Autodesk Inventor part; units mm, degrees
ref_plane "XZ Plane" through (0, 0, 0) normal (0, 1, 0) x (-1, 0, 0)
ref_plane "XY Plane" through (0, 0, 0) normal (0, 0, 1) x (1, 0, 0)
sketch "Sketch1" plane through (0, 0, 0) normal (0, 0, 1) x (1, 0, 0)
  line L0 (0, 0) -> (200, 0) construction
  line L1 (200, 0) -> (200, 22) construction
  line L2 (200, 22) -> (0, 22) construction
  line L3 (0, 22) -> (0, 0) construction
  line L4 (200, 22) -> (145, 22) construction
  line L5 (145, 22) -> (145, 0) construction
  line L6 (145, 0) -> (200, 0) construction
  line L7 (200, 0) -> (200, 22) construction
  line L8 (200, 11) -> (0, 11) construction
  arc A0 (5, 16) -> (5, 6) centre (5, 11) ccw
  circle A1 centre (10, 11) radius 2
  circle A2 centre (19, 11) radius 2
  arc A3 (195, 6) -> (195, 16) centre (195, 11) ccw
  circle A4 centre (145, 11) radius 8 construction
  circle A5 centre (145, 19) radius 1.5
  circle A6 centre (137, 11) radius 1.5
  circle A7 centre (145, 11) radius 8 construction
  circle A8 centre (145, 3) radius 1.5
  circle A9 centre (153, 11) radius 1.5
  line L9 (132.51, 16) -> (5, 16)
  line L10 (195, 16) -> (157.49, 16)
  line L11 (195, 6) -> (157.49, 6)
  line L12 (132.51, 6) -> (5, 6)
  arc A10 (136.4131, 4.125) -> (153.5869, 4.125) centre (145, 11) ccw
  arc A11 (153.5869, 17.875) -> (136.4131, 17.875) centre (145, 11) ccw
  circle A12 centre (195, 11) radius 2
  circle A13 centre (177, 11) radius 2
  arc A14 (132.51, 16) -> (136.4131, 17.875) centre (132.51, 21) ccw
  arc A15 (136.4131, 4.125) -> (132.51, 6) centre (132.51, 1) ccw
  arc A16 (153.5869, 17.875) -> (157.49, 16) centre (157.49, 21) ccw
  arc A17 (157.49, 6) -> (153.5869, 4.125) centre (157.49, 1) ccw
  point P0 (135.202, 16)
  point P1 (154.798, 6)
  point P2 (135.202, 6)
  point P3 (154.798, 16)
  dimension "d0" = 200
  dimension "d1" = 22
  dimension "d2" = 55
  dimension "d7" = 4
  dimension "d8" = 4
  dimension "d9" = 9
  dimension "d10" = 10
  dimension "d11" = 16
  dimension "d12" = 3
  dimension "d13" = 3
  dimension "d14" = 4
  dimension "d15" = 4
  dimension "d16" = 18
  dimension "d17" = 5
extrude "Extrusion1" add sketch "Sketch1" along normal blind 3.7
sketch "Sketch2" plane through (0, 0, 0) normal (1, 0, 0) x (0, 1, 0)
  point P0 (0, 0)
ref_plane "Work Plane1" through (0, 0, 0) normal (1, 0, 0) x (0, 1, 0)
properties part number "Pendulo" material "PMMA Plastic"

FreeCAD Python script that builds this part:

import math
import FreeCAD as App
import Part
import Sketcher
Q = App.Units.Quantity

doc = App.newDocument("Part")
body = doc.addObject("PartDesign::Body", "Body")

# Sketch on XY plane
sketch1 = body.newObject("Sketcher::SketchObject", "Sketch")
sketch1.AttachmentSupport = (doc.getObject("XY_Plane"), [""])
sketch1.MapMode = "FlatFace"
sketch1.addGeometry([
    Part.LineSegment(App.Vector(132.5, 16, 0), App.Vector(5, 16, 0)),  # 0
    Part.ArcOfCircle(Part.Circle(App.Vector(5, 11, 0), App.Vector(0, 0, 1), 5), math.radians(90), math.radians(270)),  # 1
    Part.LineSegment(App.Vector(5, 6, 0), App.Vector(132.5, 6, 0)),  # 2
    Part.ArcOfCircle(Part.Circle(App.Vector(132.5, 1, 0), App.Vector(0, 0, 1), 5), math.radians(39), math.radians(90)),  # 3
    Part.ArcOfCircle(Part.Circle(App.Vector(145, 11, 0), App.Vector(0, 0, 1), 11), math.radians(-141), math.radians(-39)),  # 4
    Part.ArcOfCircle(Part.Circle(App.Vector(157.5, 1, 0), App.Vector(0, 0, 1), 5), math.radians(90), math.radians(141)),  # 5
    Part.LineSegment(App.Vector(157.5, 6, 0), App.Vector(195, 6, 0)),  # 6
    Part.ArcOfCircle(Part.Circle(App.Vector(195, 11, 0), App.Vector(0, 0, 1), 5), math.radians(-90), math.radians(90)),  # 7
    Part.LineSegment(App.Vector(195, 16, 0), App.Vector(157.5, 16, 0)),  # 8
    Part.ArcOfCircle(Part.Circle(App.Vector(157.5, 21, 0), App.Vector(0, 0, 1), 5), math.radians(-141), math.radians(-90)),  # 9
    Part.ArcOfCircle(Part.Circle(App.Vector(145, 11, 0), App.Vector(0, 0, 1), 11), math.radians(39), math.radians(141)),  # 10
    Part.ArcOfCircle(Part.Circle(App.Vector(132.5, 21, 0), App.Vector(0, 0, 1), 5), math.radians(-90), math.radians(-39)),  # 11
    Part.Circle(App.Vector(145, 3, 0), App.Vector(0, 0, 1), 1.5),  # 12
    Part.Circle(App.Vector(10, 11, 0), App.Vector(0, 0, 1), 2),  # 13
    Part.Circle(App.Vector(19, 11, 0), App.Vector(0, 0, 1), 2),  # 14
    Part.Circle(App.Vector(137, 11, 0), App.Vector(0, 0, 1), 1.5),  # 15
    Part.Circle(App.Vector(153, 11, 0), App.Vector(0, 0, 1), 1.5),  # 16
    Part.Circle(App.Vector(177, 11, 0), App.Vector(0, 0, 1), 2),  # 17
    Part.Circle(App.Vector(195, 11, 0), App.Vector(0, 0, 1), 2),  # 18
    Part.Circle(App.Vector(145, 19, 0), App.Vector(0, 0, 1), 1.5),  # 19
], False)
sketch1.addConstraint([
    Sketcher.Constraint("Tangent", 0, 2, 1, 1),
    Sketcher.Constraint("Tangent", 1, 2, 2, 1),
    Sketcher.Constraint("Tangent", 2, 2, 3, 2),
    Sketcher.Constraint("Tangent", 3, 1, 4, 1),
    Sketcher.Constraint("Tangent", 4, 2, 5, 2),
    Sketcher.Constraint("Tangent", 5, 1, 6, 1),
    Sketcher.Constraint("Tangent", 6, 2, 7, 1),
    Sketcher.Constraint("Tangent", 7, 2, 8, 1),
    Sketcher.Constraint("Tangent", 8, 2, 9, 2),
    Sketcher.Constraint("Tangent", 9, 1, 10, 1),
    Sketcher.Constraint("Tangent", 10, 2, 11, 2),
    Sketcher.Constraint("Tangent", 11, 1, 0, 1),
    Sketcher.Constraint("Horizontal", 0),
    Sketcher.Constraint("Horizontal", 2),
    Sketcher.Constraint("Horizontal", 6),
    Sketcher.Constraint("Horizontal", 8),
    Sketcher.Constraint("Coincident", 10, 3, 4, 3),
    Sketcher.Constraint("Coincident", 18, 3, 7, 3),
    Sketcher.Constraint("Equal", 1, 3),
    Sketcher.Constraint("Equal", 3, 5),
    Sketcher.Constraint("Equal", 5, 7),
    Sketcher.Constraint("Equal", 7, 9),
    Sketcher.Constraint("Equal", 4, 10),
    Sketcher.Constraint("Equal", 9, 11),
    Sketcher.Constraint("Equal", 13, 14),
    Sketcher.Constraint("Equal", 12, 15),
    Sketcher.Constraint("Equal", 15, 16),
    Sketcher.Constraint("Equal", 14, 17),
    Sketcher.Constraint("Equal", 17, 18),
    Sketcher.Constraint("Equal", 16, 19),
    Sketcher.Constraint("Horizontal", 1, 3, 4, 3),
    Sketcher.Constraint("Horizontal", 3, 3, 5, 3),
    Sketcher.Constraint("Horizontal", 10, 3, 13, 3),
    Sketcher.Constraint("Horizontal", 13, 3, 14, 3),
    Sketcher.Constraint("Horizontal", 14, 3, 15, 3),
    Sketcher.Constraint("Horizontal", 15, 3, 16, 3),
    Sketcher.Constraint("Horizontal", 16, 3, 17, 3),
    Sketcher.Constraint("Vertical", 10, 3, 12, 3),
    Sketcher.Constraint("Vertical", 12, 3, 19, 3),
    Sketcher.Constraint("Diameter", 12, Q("3 mm")),
    Sketcher.Constraint("Diameter", 13, Q("4 mm")),
    Sketcher.Constraint("Radius", 1, Q("5 mm")),
    Sketcher.Constraint("Radius", 4, Q("11 mm")),
    Sketcher.Constraint("DistanceX", -1, 1, 1, 3, Q("5 mm")),
    Sketcher.Constraint("DistanceY", -1, 1, 12, 3, Q("3 mm")),
    Sketcher.Constraint("DistanceX", -1, 1, 13, 3, Q("10 mm")),
    Sketcher.Constraint("DistanceY", -1, 1, 0, 2, Q("16 mm")),
    Sketcher.Constraint("DistanceX", 13, 3, 14, 3, Q("9 mm")),
    Sketcher.Constraint("DistanceX", 17, 3, 7, 3, Q("18 mm")),
    Sketcher.Constraint("DistanceY", 8, 2, 19, 3, Q("3 mm")),
    Sketcher.Constraint("DistanceX", -1, 1, 4, 3, Q("145 mm")),
    Sketcher.Constraint("DistanceX", -1, 1, 7, 3, Q("195 mm")),
    Sketcher.Constraint("DistanceX", -1, 1, 15, 3, Q("137 mm")),
    Sketcher.Constraint("DistanceX", -1, 1, 16, 3, Q("153 mm")),
])
pad1 = body.newObject("PartDesign::Pad", "Pad")
pad1.Profile = sketch1
pad1.Length = 3.7

doc.recompute()
